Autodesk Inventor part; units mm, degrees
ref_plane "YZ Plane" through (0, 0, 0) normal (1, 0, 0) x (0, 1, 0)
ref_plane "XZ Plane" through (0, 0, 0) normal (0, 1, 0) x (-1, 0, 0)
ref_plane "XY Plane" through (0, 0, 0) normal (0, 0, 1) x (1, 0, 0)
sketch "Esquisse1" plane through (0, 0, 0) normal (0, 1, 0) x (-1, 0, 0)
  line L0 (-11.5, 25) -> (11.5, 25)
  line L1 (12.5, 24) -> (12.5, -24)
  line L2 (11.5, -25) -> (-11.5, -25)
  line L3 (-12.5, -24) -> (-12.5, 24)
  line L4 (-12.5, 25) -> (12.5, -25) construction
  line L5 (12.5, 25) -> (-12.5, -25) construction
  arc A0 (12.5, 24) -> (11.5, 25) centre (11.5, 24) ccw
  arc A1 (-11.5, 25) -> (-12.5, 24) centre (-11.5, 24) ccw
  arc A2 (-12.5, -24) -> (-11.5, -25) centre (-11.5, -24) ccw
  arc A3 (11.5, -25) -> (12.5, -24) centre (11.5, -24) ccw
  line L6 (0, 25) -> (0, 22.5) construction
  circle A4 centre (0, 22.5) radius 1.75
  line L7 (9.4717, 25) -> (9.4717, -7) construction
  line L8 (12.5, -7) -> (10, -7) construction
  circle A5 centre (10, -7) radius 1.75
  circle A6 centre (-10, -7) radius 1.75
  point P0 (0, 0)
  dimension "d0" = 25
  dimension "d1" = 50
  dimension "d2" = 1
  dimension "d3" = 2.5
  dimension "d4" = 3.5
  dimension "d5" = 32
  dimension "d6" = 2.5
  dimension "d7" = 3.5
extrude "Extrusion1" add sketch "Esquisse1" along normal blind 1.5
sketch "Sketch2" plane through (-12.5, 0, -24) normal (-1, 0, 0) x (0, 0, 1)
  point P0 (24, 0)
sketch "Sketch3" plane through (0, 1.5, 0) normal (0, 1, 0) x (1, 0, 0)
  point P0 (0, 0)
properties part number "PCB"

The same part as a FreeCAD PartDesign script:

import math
import FreeCAD as App
import Part
import Sketcher
Q = App.Units.Quantity

doc = App.newDocument("Part")
body = doc.addObject("PartDesign::Body", "Body")

sketch1 = doc.addObject("Sketcher::SketchObject", "Sketch")
body.addObject(sketch1)
sketch1.AttachmentSupport = (doc.XZ_Plane, [""])
sketch1.MapMode = "FlatFace"
sketch1.addGeometry([
    Part.LineSegment(App.Vector(-11.5, 25, 0), App.Vector(11.5, 25, 0)),
    Part.ArcOfCircle(Part.Circle(App.Vector(11.5, 24, 0), App.Vector(0, 0, 1), 1), math.radians(0), math.radians(90)),
    Part.LineSegment(App.Vector(12.5, 24, 0), App.Vector(12.5, -24, 0)),
    Part.ArcOfCircle(Part.Circle(App.Vector(11.5, -24, 0), App.Vector(0, 0, 1), 1), math.radians(-90), math.radians(0)),
    Part.LineSegment(App.Vector(11.5, -25, 0), App.Vector(-11.5, -25, 0)),
    Part.ArcOfCircle(Part.Circle(App.Vector(-11.5, -24, 0), App.Vector(0, 0, 1), 1), math.radians(180), math.radians(270)),
    Part.LineSegment(App.Vector(-12.5, -24, 0), App.Vector(-12.5, 24, 0)),
    Part.ArcOfCircle(Part.Circle(App.Vector(-11.5, 24, 0), App.Vector(0, 0, 1), 1), math.radians(90), math.radians(180)),
    Part.Circle(App.Vector(10, -7, 0), App.Vector(0, 0, 1), 1.8),
    Part.Circle(App.Vector(-10, -7, 0), App.Vector(0, 0, 1), 1.8),
    Part.Circle(App.Vector(0, 22.5, 0), App.Vector(0, 0, 1), 1.8),
], False)
sketch1.addConstraint([
    Sketcher.Constraint("Tangent", 0, 2, 1, 2),
    Sketcher.Constraint("Tangent", 1, 1, 2, 1),
    Sketcher.Constraint("Tangent", 2, 2, 3, 2),
    Sketcher.Constraint("Tangent", 3, 1, 4, 1),
    Sketcher.Constraint("Tangent", 4, 2, 5, 2),
    Sketcher.Constraint("Tangent", 5, 1, 6, 1),
    Sketcher.Constraint("Tangent", 6, 2, 7, 2),
    Sketcher.Constraint("Tangent", 7, 1, 0, 1),
    Sketcher.Constraint("Horizontal", 0),
    Sketcher.Constraint("Vertical", 2),
    Sketcher.Constraint("Horizontal", 4),
    Sketcher.Constraint("Vertical", 6),
    Sketcher.Constraint("Equal", 1, 3),
    Sketcher.Constraint("Equal", 3, 5),
    Sketcher.Constraint("Equal", 5, 7),
    Sketcher.Constraint("Equal", 8, 9),
    Sketcher.Constraint("Equal", 9, 10),
    Sketcher.Constraint("Symmetric", 1, 3, 5, 3, -1, 1),
    Sketcher.Constraint("Symmetric", 8, 3, 9, 3, -2),
    Sketcher.Constraint("PointOnObject", 10, 3, -2),
    Sketcher.Constraint("Radius", 1, Q("1 mm")),
    Sketcher.Constraint("Diameter", 8, Q("3.5 mm")),
    Sketcher.Constraint("DistanceY", -1, 1, 0, 2, Q("25 mm")),
    Sketcher.Constraint("DistanceY", 8, 3, 0, 2, Q("32 mm")),
    Sketcher.Constraint("DistanceX", 6, 2, 1, 1, Q("25 mm")),
    Sketcher.Constraint("DistanceY", 10, 3, 0, 2, Q("2.5 mm")),
    Sketcher.Constraint("DistanceX", 8, 3, 1, 1, Q("2.5 mm")),
])
pad1 = doc.addObject("PartDesign::Pad", "Pad")
body.addObject(pad1)
pad1.Profile = sketch1
pad1.Length = 1.5
pad1.Reversed = True

doc.recompute()
